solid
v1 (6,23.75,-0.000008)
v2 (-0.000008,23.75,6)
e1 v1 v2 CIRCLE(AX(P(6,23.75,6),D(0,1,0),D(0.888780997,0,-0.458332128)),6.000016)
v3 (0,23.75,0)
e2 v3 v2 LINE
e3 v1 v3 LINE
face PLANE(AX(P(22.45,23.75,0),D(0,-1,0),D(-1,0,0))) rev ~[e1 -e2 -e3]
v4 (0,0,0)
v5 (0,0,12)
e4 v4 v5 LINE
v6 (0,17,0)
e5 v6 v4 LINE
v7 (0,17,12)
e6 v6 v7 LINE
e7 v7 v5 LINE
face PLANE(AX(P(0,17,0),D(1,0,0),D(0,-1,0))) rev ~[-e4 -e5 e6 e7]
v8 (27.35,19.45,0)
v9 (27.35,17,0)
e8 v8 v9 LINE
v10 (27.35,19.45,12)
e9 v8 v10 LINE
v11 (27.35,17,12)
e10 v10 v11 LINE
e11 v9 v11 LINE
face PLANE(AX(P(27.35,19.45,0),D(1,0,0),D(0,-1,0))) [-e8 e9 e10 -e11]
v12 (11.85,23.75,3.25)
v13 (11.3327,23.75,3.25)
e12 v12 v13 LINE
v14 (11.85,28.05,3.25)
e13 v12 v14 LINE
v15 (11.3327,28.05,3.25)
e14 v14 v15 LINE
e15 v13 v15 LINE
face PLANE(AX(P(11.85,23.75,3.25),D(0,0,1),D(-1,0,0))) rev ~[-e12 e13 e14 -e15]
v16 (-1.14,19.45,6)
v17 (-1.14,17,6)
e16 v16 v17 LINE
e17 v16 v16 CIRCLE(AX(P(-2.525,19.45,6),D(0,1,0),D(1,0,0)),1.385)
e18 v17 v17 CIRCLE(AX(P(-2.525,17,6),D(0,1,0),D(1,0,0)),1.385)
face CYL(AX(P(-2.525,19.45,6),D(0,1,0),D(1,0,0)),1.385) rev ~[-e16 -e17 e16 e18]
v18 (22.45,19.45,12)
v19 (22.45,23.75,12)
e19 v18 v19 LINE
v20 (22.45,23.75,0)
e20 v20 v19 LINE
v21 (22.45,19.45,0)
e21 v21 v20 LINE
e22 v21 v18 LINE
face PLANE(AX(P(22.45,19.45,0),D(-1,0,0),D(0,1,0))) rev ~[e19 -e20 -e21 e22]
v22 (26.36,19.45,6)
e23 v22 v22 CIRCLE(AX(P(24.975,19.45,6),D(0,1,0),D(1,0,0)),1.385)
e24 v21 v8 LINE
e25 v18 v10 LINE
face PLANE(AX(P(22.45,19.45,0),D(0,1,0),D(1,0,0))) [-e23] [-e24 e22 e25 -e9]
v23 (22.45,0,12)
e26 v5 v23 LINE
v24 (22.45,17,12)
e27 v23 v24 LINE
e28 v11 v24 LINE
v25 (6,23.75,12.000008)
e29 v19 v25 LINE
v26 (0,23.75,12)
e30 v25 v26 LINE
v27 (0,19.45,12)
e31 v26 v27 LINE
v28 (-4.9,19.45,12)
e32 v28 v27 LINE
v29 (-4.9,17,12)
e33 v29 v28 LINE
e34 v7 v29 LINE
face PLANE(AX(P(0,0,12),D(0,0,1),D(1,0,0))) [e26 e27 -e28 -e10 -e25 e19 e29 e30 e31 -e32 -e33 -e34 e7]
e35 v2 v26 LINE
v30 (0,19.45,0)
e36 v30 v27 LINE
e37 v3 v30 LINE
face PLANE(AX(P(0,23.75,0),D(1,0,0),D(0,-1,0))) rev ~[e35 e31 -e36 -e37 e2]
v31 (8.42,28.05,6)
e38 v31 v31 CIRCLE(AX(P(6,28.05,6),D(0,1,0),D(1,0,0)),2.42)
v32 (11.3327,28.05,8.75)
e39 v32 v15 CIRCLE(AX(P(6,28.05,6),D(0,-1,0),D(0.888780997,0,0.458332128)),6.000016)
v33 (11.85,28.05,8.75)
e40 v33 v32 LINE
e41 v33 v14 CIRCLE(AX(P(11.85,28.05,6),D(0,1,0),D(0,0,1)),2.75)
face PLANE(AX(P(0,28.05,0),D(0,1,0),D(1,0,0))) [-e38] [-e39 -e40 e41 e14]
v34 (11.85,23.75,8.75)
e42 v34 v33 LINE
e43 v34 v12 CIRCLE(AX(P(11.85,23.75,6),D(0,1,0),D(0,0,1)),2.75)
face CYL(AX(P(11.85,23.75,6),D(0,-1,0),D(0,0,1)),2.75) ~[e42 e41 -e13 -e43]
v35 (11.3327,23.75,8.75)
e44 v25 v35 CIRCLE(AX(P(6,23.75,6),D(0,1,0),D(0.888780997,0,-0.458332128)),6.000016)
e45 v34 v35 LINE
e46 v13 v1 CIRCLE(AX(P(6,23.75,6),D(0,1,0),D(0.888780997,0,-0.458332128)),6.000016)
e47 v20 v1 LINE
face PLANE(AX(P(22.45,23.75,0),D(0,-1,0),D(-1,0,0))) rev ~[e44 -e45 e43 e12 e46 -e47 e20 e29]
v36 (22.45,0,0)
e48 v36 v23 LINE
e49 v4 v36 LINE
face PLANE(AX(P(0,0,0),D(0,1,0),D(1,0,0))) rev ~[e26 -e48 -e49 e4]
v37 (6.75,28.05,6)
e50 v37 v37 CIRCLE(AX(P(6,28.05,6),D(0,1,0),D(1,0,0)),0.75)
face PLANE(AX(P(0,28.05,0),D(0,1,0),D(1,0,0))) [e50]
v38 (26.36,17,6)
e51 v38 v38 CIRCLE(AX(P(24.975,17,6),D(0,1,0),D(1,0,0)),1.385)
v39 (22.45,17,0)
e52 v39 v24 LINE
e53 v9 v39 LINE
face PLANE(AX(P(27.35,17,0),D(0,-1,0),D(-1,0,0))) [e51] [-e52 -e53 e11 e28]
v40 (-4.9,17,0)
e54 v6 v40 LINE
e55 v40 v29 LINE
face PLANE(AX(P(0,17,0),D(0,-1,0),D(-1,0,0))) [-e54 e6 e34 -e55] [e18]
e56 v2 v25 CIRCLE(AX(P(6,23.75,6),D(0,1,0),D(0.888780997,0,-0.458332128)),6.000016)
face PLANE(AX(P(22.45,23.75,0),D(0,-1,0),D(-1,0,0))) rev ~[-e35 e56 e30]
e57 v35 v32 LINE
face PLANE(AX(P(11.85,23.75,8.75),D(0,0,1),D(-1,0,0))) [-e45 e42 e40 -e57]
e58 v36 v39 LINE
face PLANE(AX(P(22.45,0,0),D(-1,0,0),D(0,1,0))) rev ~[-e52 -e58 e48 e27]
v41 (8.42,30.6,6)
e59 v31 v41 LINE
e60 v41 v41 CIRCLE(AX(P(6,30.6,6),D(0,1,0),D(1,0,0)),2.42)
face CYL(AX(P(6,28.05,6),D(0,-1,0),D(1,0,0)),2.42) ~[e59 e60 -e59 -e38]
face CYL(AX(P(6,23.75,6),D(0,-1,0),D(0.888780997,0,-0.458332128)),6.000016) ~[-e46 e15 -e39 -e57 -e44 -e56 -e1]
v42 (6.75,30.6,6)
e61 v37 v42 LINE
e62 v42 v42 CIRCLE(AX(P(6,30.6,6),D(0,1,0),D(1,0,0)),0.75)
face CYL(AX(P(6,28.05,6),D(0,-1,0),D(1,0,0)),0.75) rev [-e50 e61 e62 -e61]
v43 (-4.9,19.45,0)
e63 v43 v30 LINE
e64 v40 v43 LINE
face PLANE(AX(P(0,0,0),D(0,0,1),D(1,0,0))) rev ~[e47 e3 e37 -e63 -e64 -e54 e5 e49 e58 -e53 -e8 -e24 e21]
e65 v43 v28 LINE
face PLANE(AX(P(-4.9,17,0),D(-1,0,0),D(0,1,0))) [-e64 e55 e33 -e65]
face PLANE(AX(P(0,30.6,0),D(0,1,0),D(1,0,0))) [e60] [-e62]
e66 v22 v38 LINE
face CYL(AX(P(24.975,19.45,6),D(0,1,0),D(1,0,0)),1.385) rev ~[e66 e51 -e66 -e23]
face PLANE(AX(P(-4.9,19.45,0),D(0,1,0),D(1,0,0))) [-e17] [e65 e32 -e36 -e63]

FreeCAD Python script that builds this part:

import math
import FreeCAD as App
import Part
import Sketcher

V = App.Vector
Q = App.Units.Quantity


def add_polygon(sketch, points):
    """Adds a closed chain of lines whose ends are joined by coincident constraints."""
    first, n = sketch.GeometryCount, len(points)
    for a, b in zip(points, points[1:] + points[:1]):
        sketch.addGeometry(Part.LineSegment(App.Vector(*a, 0), App.Vector(*b, 0)), False)
    for i in range(n):
        sketch.addConstraint(Sketcher.Constraint("Coincident", first + i, 2, first + (i + 1) % n, 1))

doc = App.newDocument("Part")
body = doc.addObject("PartDesign::Body", "Body")

# Sketch on XY plane
sketch1 = doc.addObject("Sketcher::SketchObject", "Sketch")
body.addObject(sketch1)
sketch1.AttachmentSupport = (doc.XY_Plane, [""])
sketch1.MapMode = "FlatFace"
add_polygon(sketch1, [(0, 17), (0, 0), (22.45, 0), (22.45, 17), (27.35, 17), (27.35, 19.45), (22.45, 19.45), (22.45, 23.75), (0, 23.75), (0, 19.45), (-4.9, 19.45), (-4.9, 17)])  # lines 0-11
sketch1.addConstraint([
    Sketcher.Constraint("Vertical", 0),
    Sketcher.Constraint("Horizontal", 1),
    Sketcher.Constraint("Vertical", 2),
    Sketcher.Constraint("Horizontal", 3),
    Sketcher.Constraint("Vertical", 4),
    Sketcher.Constraint("Horizontal", 5),
    Sketcher.Constraint("Vertical", 6),
    Sketcher.Constraint("Horizontal", 7),
    Sketcher.Constraint("Vertical", 8),
    Sketcher.Constraint("Horizontal", 9),
    Sketcher.Constraint("Vertical", 10),
    Sketcher.Constraint("Horizontal", 11),
    Sketcher.Constraint("Coincident", 0, 2, -1, 1),
    Sketcher.Constraint("PointOnObject", 7, 2, -2),
    Sketcher.Constraint("Horizontal", 5, 2, 8, 2),
    Sketcher.Constraint("Horizontal", 3, 2, 10, 2),
    Sketcher.Constraint("Vertical", 2, 2, 5, 2),
    Sketcher.Constraint("Equal", 5, 9),
    Sketcher.Constraint("DistanceY", 0, 2, 0, 1, Q("17 mm")),
    Sketcher.Constraint("DistanceX", 3, 1, 3, 2, Q("4.9 mm")),
    Sketcher.Constraint("DistanceX", 1, 1, 1, 2, Q("22.45 mm")),
    Sketcher.Constraint("DistanceY", 4, 1, 4, 2, Q("2.45 mm")),
    Sketcher.Constraint("DistanceY", -1, 1, 6, 2, Q("23.75 mm")),
])
pad1 = doc.addObject("PartDesign::Pad", "Pad")
body.addObject(pad1)
pad1.Profile = sketch1
pad1.Length = 12

# Sketch on XZ plane
sketch2 = doc.addObject("Sketcher::SketchObject", "Sketch001")
body.addObject(sketch2)
sketch2.AttachmentSupport = (doc.XZ_Plane, [""])
sketch2.MapMode = "FlatFace"
sketch2.AttachmentOffset = App.Placement(V(0, 0, -19.45), App.Rotation())
sketch2.addGeometry([
    Part.Circle(V(-2.525, 6, 0), V(0, 0, 1), 1.385),
    Part.Circle(V(24.975, 6, 0), V(0, 0, 1), 1.385),
], False)
sketch2.addConstraint([
    Sketcher.Constraint("Equal", 0, 1),
    Sketcher.Constraint("Horizontal", 0, 3, 1, 3),
    Sketcher.Constraint("Diameter", 0, Q("2.77 mm")),
    Sketcher.Constraint("DistanceX", 0, 3, 1, 3, Q("27.5 mm")),
    Sketcher.Constraint("DistanceY", -1, 1, 0, 3, Q("6 mm")),
    Sketcher.Constraint("DistanceX", 0, 3, -1, 1, Q("2.525 mm")),
])
pocket1 = doc.addObject("PartDesign::Pocket", "Pocket")
body.addObject(pocket1)
pocket1.Profile = sketch2
pocket1.Length = 10
pocket1.Reversed = True

# Sketch on XZ plane
sketch3 = doc.addObject("Sketcher::SketchObject", "Sketch002")
body.addObject(sketch3)
sketch3.AttachmentSupport = (doc.XZ_Plane, [""])
sketch3.MapMode = "FlatFace"
sketch3.AttachmentOffset = App.Placement(V(0, 0, -23.75), App.Rotation())
sketch3.addGeometry([
    Part.LineSegment(V(11.85, 3.25, 0), V(11.3327, 3.25, 0)),
    Part.ArcOfCircle(Part.Circle(V(6, 6, 0), V(0, 0, 1), 6.000016), math.radians(27.279535), math.radians(332.720465)),
    Part.LineSegment(V(11.3327, 8.75, 0), V(11.85, 8.75, 0)),
    Part.ArcOfCircle(Part.Circle(V(11.85, 6, 0), V(0, 0, 1), 2.75), math.radians(-90), math.radians(90)),
], False)
sketch3.addConstraint([
    Sketcher.Constraint("Coincident", 0, 2, 1, 2),
    Sketcher.Constraint("Coincident", 1, 1, 2, 1),
    Sketcher.Constraint("Tangent", 2, 2, 3, 2),
    Sketcher.Constraint("Tangent", 3, 1, 0, 1),
    Sketcher.Constraint("Horizontal", 0),
    Sketcher.Constraint("Horizontal", 2),
    Sketcher.Constraint("Horizontal", 1, 3, 3, 3),
    Sketcher.Constraint("Radius", 3, Q("2.75 mm")),
    Sketcher.Constraint("Radius", 1, Q("6 mm")),
    Sketcher.Constraint("DistanceX", -1, 1, 1, 3, Q("6 mm")),
    Sketcher.Constraint("DistanceY", -1, 1, 1, 3, Q("6 mm")),
    Sketcher.Constraint("DistanceX", -1, 1, 3, 3, Q("11.85 mm")),
])
pad2 = doc.addObject("PartDesign::Pad", "Pad001")
body.addObject(pad2)
pad2.Profile = sketch3
pad2.Length = 4.3
pad2.Reversed = True

# Sketch on XZ plane
sketch4 = doc.addObject("Sketcher::SketchObject", "Sketch003")
body.addObject(sketch4)
sketch4.AttachmentSupport = (doc.XZ_Plane, [""])
sketch4.MapMode = "FlatFace"
sketch4.AttachmentOffset = App.Placement(V(0, 0, -28.05), App.Rotation())
sketch4.addGeometry([
    Part.Circle(V(6, 6, 0), V(0, 0, 1), 2.42),
    Part.Circle(V(6, 6, 0), V(0, 0, 1), 0.75),
], False)
sketch4.addConstraint([
    Sketcher.Constraint("Coincident", 1, 3, 0, 3),
    Sketcher.Constraint("Diameter", 1, Q("1.5 mm")),
    Sketcher.Constraint("Diameter", 0, Q("4.84 mm")),
    Sketcher.Constraint("DistanceX", -1, 1, 0, 3, Q("6 mm")),
    Sketcher.Constraint("DistanceY", -1, 1, 0, 3, Q("6 mm")),
])
pad3 = doc.addObject("PartDesign::Pad", "Pad002")
body.addObject(pad3)
pad3.Profile = sketch4
pad3.Length = 2.55
pad3.Reversed = True

doc.recompute()
